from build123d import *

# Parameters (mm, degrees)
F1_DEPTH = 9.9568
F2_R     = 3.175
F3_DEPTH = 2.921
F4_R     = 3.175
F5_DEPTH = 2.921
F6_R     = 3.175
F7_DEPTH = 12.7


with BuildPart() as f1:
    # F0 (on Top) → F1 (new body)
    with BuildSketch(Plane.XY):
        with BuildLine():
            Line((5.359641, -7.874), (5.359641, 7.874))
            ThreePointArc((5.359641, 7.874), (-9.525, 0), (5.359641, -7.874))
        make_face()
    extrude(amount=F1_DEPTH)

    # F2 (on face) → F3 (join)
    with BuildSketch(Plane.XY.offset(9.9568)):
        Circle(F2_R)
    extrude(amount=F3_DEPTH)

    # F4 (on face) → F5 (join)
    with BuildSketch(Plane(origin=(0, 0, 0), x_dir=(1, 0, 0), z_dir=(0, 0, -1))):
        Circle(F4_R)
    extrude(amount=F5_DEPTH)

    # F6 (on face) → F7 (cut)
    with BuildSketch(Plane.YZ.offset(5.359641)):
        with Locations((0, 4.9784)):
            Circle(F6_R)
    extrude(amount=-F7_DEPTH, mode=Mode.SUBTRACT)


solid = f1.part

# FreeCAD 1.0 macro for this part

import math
import FreeCAD as App
import Part
import Sketcher

V = App.Vector
Q = App.Units.Quantity

doc = App.newDocument("Part")
body = doc.addObject("PartDesign::Body", "Body")

sketch1 = body.newObject("Sketcher::SketchObject", "Sketch")
sketch1.AttachmentSupport = (doc.getObject("XY_Plane"), [""])
sketch1.MapMode = "FlatFace"
sketch1.addGeometry([
    Part.LineSegment(V(5, -8, 0), V(5, 8, 0)),
    Part.ArcOfCircle(Part.Circle(V(0, 0, 0), V(0, 0, 1), 10), math.radians(56), math.radians(304)),
], False)
sketch1.addConstraint([
    Sketcher.Constraint("Coincident", 0, 1, 1, 2),
    Sketcher.Constraint("Coincident", 1, 1, 0, 2),
    Sketcher.Constraint("Vertical", 0),
    Sketcher.Constraint("Coincident", 1, 3, -1, 1),
    Sketcher.Constraint("Radius", 1, Q("0.375 in")),
    Sketcher.Constraint("DistanceY", 0, 1, 0, 2, Q("0.62 in")),
])
pad1 = body.newObject("PartDesign::Pad", "Pad")
pad1.Profile = sketch1
pad1.Length = Q("0.392 in")

sketch2 = body.newObject("Sketcher::SketchObject", "Sketch001")
sketch2.AttachmentSupport = (doc.getObject("XY_Plane"), [""])
sketch2.MapMode = "FlatFace"
sketch2.AttachmentOffset = App.Placement(V(0, 0, 0.392 * 25.4), App.Rotation())
sketch2.addGeometry(Part.Circle(V(0, 0, 0), V(0, 0, 1), 3.2), False)
sketch2.addConstraint([
    Sketcher.Constraint("Coincident", 0, 3, -1, 1),
    Sketcher.Constraint("Diameter", 0, Q("0.25 in")),
])
pad2 = body.newObject("PartDesign::Pad", "Pad001")
pad2.Profile = sketch2
pad2.Length = Q("0.115 in")

sketch3 = body.newObject("Sketcher::SketchObject", "Sketch002")
sketch3.AttachmentSupport = (doc.getObject("XY_Plane"), [""])
sketch3.MapMode = "FlatFace"
sketch3.addGeometry(Part.Circle(V(0, 0, 0), V(0, 0, 1), 3.2), False)
sketch3.addConstraint([
    Sketcher.Constraint("Coincident", 0, 3, -1, 1),
    Sketcher.Constraint("Diameter", 0, Q("0.25 in")),
])
pad3 = body.newObject("PartDesign::Pad", "Pad002")
pad3.Profile = sketch3
pad3.Length = Q("0.115 in")
pad3.Reversed = True

sketch4 = body.newObject("Sketcher::SketchObject", "Sketch003")
sketch4.AttachmentSupport = (doc.getObject("YZ_Plane"), [""])
sketch4.MapMode = "FlatFace"
sketch4.AttachmentOffset = App.Placement(V(0, 0, 5.359641), App.Rotation())
sketch4.addGeometry(Part.Circle(V(0, 5, 0), V(0, 0, 1), 3.2), False)
sketch4.addConstraint([
    Sketcher.Constraint("PointOnObject", 0, 3, -2),
    Sketcher.Constraint("Diameter", 0, Q("0.25 in")),
    Sketcher.Constraint("DistanceY", -1, 1, 0, 3, Q("0.196 in")),
])
pocket1 = body.newObject("PartDesign::Pocket", "Pocket")
pocket1.Profile = sketch4
pocket1.Length = Q("0.5 in")

doc.recompute()
